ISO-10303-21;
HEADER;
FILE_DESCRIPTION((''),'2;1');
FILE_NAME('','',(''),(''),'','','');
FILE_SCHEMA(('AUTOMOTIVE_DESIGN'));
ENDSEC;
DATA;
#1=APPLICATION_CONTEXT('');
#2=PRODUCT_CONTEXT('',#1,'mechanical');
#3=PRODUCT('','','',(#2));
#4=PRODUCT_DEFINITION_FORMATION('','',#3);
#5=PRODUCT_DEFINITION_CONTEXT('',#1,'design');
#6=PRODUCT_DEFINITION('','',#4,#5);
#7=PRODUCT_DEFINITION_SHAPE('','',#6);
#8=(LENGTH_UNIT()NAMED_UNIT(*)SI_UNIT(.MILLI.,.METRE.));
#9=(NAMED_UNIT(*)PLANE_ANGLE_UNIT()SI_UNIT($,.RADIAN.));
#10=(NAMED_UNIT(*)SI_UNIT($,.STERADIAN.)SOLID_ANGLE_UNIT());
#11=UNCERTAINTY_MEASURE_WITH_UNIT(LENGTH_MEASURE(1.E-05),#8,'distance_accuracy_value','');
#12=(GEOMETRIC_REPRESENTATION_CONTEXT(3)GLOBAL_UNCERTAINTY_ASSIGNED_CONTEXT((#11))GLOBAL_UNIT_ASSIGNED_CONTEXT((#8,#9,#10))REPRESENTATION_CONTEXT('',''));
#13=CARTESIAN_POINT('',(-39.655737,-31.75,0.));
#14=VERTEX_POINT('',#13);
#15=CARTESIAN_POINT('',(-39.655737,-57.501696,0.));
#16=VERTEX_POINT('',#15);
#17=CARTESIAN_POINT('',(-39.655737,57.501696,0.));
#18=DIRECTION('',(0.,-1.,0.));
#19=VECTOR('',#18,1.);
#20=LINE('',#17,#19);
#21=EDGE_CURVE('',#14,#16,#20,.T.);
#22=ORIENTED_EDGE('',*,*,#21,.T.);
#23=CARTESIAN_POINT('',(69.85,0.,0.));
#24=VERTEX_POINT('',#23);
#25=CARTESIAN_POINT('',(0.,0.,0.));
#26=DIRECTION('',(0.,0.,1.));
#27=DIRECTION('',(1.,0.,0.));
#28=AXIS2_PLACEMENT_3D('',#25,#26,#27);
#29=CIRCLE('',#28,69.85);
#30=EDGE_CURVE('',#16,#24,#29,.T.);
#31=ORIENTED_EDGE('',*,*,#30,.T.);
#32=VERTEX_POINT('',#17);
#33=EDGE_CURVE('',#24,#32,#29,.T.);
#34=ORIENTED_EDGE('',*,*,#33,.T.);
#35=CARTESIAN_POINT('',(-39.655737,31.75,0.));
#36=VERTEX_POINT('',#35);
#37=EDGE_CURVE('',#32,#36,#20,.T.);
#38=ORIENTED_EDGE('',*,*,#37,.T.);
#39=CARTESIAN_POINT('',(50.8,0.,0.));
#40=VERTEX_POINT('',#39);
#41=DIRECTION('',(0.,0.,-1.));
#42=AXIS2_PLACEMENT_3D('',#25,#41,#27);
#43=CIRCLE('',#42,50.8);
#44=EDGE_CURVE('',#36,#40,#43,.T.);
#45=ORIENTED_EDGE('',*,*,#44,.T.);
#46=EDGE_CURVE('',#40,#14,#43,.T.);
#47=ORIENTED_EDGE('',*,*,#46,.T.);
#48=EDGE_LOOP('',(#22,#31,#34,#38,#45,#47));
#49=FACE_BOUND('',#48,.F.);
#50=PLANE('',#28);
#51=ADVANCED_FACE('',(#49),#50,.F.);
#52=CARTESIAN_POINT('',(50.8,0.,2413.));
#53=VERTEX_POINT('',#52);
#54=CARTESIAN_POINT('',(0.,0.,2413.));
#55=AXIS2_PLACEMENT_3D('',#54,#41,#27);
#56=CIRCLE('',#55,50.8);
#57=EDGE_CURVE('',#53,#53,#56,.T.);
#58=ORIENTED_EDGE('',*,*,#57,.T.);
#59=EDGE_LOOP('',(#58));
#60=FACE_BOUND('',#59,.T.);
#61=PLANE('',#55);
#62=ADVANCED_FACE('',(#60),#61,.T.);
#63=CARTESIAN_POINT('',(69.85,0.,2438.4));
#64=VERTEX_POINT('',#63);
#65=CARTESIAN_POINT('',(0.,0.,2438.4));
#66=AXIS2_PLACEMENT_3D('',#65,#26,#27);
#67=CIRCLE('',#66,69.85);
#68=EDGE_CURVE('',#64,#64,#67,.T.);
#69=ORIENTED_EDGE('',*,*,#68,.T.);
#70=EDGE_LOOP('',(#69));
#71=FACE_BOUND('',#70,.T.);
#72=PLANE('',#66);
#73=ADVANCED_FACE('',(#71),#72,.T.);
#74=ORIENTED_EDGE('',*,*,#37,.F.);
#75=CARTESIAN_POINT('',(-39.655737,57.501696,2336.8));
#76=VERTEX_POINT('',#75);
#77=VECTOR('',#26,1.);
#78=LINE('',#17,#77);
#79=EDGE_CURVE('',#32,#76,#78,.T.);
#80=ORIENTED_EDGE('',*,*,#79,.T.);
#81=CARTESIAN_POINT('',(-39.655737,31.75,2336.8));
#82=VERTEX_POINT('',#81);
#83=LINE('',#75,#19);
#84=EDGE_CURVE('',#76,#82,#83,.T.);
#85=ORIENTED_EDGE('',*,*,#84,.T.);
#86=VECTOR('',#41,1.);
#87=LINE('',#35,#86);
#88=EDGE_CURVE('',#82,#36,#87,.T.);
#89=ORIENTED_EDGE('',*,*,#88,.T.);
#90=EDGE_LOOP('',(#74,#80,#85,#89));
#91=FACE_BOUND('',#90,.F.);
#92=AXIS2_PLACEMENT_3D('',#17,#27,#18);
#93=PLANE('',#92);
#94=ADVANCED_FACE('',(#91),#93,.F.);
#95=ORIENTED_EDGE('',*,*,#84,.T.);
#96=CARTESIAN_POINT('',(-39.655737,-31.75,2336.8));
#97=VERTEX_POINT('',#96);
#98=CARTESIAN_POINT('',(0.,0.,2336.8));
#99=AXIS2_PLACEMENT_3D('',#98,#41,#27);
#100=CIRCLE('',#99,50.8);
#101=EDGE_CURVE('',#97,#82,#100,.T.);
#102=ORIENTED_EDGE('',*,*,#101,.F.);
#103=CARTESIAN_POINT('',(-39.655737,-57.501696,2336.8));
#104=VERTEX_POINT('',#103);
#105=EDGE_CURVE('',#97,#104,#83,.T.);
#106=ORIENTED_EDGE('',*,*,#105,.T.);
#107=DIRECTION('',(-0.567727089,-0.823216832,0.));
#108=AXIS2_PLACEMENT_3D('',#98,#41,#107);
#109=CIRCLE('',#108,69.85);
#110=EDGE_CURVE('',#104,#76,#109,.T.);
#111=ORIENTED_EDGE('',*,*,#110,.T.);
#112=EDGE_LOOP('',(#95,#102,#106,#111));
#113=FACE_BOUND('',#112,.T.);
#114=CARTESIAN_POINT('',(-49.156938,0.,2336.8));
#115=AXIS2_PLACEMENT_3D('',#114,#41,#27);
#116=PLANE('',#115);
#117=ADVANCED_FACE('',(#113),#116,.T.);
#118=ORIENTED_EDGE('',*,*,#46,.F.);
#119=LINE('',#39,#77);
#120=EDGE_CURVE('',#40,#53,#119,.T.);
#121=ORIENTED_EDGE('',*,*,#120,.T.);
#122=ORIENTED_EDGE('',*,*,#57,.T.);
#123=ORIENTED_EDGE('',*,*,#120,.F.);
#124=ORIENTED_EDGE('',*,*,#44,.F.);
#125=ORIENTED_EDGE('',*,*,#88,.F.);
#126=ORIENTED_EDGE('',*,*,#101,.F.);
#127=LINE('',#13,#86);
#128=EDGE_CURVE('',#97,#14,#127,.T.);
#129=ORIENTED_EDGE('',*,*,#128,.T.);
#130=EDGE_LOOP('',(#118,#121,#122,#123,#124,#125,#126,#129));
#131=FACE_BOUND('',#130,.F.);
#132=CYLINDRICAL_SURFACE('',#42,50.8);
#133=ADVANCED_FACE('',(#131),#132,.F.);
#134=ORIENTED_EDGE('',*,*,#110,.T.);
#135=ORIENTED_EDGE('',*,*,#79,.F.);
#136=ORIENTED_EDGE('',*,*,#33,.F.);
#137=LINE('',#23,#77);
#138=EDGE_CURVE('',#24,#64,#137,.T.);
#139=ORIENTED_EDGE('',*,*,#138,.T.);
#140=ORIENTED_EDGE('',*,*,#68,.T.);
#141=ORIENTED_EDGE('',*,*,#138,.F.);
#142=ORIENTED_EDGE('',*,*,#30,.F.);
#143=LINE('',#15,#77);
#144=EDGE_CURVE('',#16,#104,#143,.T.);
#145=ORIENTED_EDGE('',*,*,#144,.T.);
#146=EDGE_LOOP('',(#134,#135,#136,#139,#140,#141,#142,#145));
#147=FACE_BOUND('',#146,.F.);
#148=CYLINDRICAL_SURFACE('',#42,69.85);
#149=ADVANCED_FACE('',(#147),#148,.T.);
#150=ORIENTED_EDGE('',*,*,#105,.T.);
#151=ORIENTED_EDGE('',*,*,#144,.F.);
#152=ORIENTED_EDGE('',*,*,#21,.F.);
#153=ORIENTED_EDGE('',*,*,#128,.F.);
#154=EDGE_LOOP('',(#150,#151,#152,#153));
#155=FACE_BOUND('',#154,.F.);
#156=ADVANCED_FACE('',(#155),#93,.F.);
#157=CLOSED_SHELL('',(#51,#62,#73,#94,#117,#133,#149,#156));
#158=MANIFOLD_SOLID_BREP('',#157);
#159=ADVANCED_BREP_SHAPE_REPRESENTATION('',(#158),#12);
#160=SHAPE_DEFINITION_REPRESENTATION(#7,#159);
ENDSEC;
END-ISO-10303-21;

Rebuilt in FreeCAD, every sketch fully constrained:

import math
import FreeCAD as App
import Part
import Sketcher
from FreeCAD import Vector
Q = App.Units.Quantity

doc = App.newDocument("Part")
body = doc.addObject("PartDesign::Body", "Body")

# Sketch on XY plane
sketch1 = body.newObject("Sketcher::SketchObject", "Sketch")
sketch1.AttachmentSupport = (doc.getObject("XY_Plane"), [""])
sketch1.MapMode = "FlatFace"
sketch1.addGeometry(Part.Circle(Vector(0, 0, 0), Vector(0, 0, 1), 69.85), False)
sketch1.addConstraint([
    Sketcher.Constraint("Coincident", 0, 3, -1, 1),
    Sketcher.Constraint("Diameter", 0, Q("5.5 in")),
])
pad1 = body.newObject("PartDesign::Pad", "Pad")
pad1.Profile = sketch1
pad1.Length = Q("96 in")

# Sketch on XY plane
sketch2 = body.newObject("Sketcher::SketchObject", "Sketch001")
sketch2.AttachmentSupport = (doc.getObject("XY_Plane"), [""])
sketch2.MapMode = "FlatFace"
sketch2.addGeometry(Part.Circle(Vector(0, 0, 0), Vector(0, 0, 1), 50.8), False)
sketch2.addConstraint([
    Sketcher.Constraint("Coincident", 0, 3, -1, 1),
    Sketcher.Constraint("Diameter", 0, Q("4 in")),
])
pocket1 = body.newObject("PartDesign::Pocket", "Pocket")
pocket1.Profile = sketch2
pocket1.Length = Q("95 in")
pocket1.Reversed = True

# Sketch on XY plane
sketch3 = body.newObject("Sketcher::SketchObject", "Sketch002")
sketch3.AttachmentSupport = (doc.getObject("XY_Plane"), [""])
sketch3.MapMode = "FlatFace"
sketch3.addGeometry([
    Part.ArcOfCircle(Part.Circle(Vector(0, 0, 0), Vector(0, 0, 1), 69.85), math.radians(124.59188), math.radians(235.40812)),
    Part.LineSegment(Vector(-39.655737, 57.501696, 0), Vector(-39.655737, -57.501696, 0)),
], False)
sketch3.addConstraint([
    Sketcher.Constraint("Coincident", 0, 1, 1, 1),
    Sketcher.Constraint("Coincident", 1, 2, 0, 2),
    Sketcher.Constraint("Vertical", 1),
    Sketcher.Constraint("Coincident", 0, 3, -1, 1),
    Sketcher.Constraint("Radius", 0, Q("2.75 in")),
    Sketcher.Constraint("DistanceY", 1, 2, 1, 1, Q("115.003392 mm")),
])
pocket2 = body.newObject("PartDesign::Pocket", "Pocket001")
pocket2.Profile = sketch3
pocket2.Length = Q("92 in")
pocket2.Reversed = True

doc.recompute()
